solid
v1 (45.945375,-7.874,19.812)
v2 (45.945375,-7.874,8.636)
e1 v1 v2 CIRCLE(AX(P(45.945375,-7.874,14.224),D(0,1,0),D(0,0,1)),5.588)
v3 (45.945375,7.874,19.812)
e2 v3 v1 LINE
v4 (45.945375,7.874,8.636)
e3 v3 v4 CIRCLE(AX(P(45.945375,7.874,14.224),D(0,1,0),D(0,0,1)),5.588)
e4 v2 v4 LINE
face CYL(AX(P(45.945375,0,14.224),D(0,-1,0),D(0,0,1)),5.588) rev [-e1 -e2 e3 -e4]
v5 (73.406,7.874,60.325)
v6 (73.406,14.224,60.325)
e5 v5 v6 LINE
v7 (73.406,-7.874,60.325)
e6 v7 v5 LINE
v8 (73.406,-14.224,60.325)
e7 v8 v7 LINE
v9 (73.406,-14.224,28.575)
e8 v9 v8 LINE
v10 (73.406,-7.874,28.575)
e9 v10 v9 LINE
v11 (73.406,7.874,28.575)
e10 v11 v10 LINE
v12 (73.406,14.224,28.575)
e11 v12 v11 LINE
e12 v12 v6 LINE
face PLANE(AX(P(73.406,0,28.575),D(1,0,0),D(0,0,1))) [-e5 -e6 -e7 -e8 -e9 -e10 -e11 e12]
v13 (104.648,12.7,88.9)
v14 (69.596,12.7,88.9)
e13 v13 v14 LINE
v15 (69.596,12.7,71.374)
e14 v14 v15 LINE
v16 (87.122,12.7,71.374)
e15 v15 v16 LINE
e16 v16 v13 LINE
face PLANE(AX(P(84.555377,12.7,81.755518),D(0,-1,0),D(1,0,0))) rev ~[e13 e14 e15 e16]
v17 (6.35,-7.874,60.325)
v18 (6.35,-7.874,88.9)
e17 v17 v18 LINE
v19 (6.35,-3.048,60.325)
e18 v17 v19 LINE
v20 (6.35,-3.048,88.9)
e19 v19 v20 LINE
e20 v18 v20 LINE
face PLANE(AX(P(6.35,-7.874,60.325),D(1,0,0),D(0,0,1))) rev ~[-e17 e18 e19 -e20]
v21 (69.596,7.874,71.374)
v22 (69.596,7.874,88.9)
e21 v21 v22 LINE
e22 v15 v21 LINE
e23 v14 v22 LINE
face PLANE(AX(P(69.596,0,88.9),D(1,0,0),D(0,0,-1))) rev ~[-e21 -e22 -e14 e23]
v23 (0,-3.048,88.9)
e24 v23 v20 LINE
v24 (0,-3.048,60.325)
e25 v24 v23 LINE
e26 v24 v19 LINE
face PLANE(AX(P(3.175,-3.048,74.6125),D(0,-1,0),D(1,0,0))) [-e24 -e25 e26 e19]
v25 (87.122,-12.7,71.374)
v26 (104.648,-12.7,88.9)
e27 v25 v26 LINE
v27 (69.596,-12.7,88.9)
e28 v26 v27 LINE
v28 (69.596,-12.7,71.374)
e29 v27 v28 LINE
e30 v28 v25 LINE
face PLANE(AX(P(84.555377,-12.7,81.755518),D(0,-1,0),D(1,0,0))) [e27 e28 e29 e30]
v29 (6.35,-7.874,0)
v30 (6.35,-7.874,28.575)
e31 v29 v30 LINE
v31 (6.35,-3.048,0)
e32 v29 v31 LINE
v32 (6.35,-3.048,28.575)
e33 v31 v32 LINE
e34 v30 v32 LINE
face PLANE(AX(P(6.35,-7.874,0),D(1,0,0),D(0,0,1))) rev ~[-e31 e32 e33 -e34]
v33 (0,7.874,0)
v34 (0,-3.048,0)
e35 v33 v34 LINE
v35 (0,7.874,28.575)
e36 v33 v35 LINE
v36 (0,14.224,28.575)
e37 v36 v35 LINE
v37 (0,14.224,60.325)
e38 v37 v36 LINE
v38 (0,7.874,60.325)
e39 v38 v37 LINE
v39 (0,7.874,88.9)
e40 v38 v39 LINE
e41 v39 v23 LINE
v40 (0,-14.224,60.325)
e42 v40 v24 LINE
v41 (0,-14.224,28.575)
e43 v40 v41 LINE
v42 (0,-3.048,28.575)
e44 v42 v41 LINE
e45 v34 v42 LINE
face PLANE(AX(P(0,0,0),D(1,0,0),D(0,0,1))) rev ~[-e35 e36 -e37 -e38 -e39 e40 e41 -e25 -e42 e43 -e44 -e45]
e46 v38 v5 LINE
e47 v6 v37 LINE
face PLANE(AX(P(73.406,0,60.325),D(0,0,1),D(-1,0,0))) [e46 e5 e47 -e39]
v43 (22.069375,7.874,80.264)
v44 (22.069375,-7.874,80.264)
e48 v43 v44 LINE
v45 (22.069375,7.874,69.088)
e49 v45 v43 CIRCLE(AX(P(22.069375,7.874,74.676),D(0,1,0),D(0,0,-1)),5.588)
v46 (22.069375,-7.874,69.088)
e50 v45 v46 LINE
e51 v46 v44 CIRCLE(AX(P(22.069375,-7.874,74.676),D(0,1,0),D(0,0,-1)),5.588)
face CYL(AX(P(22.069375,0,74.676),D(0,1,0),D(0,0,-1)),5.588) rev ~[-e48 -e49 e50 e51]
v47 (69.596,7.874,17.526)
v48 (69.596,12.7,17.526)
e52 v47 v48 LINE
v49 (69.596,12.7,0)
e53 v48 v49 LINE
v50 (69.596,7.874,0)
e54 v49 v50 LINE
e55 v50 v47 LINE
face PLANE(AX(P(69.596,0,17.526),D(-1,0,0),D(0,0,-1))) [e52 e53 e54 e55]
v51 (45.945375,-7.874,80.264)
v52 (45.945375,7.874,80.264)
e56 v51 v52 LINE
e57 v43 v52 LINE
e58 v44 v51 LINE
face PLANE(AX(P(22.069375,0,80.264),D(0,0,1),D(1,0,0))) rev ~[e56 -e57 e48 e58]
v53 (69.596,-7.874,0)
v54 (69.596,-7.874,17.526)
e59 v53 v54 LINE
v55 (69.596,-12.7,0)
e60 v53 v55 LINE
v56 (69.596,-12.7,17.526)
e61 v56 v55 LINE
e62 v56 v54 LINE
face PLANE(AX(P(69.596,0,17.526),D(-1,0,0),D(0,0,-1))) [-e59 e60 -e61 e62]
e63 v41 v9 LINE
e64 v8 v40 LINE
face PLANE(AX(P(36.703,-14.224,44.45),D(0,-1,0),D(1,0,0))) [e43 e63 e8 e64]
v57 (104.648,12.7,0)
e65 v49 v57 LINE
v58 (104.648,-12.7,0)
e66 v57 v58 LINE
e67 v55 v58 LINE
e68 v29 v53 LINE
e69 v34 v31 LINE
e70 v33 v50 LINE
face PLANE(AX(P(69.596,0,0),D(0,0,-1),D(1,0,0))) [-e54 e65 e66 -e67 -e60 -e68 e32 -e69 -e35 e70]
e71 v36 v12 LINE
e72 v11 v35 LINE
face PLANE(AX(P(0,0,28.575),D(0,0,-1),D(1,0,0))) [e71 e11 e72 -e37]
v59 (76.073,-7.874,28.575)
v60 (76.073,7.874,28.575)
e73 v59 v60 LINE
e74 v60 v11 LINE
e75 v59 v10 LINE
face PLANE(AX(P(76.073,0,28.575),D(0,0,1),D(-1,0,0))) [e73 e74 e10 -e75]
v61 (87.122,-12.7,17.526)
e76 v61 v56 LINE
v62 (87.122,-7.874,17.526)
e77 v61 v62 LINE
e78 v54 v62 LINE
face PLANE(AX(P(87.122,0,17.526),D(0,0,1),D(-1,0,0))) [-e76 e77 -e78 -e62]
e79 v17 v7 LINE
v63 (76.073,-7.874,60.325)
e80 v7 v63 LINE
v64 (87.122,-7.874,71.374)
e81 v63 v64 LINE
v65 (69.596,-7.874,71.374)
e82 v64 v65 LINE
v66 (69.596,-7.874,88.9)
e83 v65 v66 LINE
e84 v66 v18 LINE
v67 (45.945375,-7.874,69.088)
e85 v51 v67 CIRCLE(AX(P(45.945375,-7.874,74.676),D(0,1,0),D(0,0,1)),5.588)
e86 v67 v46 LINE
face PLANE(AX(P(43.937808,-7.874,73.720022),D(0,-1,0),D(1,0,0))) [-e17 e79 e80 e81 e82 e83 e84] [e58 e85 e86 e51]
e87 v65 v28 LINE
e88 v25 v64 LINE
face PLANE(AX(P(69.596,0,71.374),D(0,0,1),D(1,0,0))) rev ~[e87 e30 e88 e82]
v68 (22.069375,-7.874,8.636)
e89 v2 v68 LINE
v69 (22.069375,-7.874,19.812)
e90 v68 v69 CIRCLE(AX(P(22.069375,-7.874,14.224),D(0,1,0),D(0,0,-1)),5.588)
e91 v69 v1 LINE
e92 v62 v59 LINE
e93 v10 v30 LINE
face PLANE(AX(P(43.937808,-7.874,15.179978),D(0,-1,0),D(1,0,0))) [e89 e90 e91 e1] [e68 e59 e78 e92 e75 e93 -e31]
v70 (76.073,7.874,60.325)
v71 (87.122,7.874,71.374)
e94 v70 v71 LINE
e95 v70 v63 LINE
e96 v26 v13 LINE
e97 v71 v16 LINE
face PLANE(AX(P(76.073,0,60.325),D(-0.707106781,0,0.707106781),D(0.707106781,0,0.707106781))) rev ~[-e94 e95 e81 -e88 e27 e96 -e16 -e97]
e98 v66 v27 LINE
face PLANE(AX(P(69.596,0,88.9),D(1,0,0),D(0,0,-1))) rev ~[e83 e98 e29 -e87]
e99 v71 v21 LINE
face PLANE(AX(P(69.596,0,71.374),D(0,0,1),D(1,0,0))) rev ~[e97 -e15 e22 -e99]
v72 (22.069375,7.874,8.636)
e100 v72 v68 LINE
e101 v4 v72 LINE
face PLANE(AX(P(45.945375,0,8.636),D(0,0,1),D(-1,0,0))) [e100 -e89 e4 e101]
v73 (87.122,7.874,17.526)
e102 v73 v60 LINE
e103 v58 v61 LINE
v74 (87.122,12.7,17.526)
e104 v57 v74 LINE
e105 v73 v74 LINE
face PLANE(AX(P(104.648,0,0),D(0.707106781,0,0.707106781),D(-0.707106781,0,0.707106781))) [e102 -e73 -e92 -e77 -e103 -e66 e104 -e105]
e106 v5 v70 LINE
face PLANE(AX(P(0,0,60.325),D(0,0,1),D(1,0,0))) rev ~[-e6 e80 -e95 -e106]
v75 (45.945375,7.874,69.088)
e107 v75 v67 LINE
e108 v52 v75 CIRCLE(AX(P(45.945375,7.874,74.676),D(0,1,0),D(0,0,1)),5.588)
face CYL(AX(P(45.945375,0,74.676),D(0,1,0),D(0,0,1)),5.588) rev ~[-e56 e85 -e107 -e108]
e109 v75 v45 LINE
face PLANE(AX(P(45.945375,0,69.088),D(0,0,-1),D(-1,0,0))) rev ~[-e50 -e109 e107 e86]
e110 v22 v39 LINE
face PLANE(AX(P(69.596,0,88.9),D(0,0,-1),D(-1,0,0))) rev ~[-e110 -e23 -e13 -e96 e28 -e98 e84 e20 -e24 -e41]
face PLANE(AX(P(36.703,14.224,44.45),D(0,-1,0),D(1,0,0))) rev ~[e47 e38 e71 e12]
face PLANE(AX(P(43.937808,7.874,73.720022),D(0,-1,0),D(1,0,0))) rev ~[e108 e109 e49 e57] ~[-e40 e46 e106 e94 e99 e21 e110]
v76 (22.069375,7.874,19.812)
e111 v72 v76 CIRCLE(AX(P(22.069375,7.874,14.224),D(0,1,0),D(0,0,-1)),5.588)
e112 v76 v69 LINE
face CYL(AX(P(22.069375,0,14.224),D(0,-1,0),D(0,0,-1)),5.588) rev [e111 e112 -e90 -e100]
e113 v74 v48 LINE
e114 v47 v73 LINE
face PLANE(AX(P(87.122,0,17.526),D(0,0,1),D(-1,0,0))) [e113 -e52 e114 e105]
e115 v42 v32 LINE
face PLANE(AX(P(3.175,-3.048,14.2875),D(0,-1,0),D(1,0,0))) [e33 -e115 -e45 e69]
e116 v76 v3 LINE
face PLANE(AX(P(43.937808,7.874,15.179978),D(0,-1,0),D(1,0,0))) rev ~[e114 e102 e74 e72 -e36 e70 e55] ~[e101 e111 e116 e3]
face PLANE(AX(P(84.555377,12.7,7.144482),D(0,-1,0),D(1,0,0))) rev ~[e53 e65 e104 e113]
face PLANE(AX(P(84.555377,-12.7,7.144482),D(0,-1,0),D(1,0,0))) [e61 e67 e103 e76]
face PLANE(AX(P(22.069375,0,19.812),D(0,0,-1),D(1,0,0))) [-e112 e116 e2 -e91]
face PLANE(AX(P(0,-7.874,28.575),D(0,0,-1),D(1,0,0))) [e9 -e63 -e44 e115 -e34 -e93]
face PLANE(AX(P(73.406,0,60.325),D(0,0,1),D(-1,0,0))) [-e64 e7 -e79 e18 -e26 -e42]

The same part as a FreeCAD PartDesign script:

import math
import FreeCAD as App
import Part
import Sketcher

V = App.Vector
Q = App.Units.Quantity

doc = App.newDocument("Part")
body = doc.addObject("PartDesign::Body", "Body")

# Sketch on XZ plane
sketch1 = body.newObject("Sketcher::SketchObject", "Sketch")
sketch1.AttachmentSupport = (doc.getObject("XZ_Plane"), [""])
sketch1.MapMode = "FlatFace"
sketch1.addGeometry([
    Part.LineSegment(V(0, 60.325, 0), V(0, 28.575, 0)),
    Part.LineSegment(V(0, 28.575, 0), V(73.406, 28.575, 0)),
    Part.LineSegment(V(73.406, 28.575, 0), V(73.406, 60.325, 0)),
    Part.LineSegment(V(73.406, 60.325, 0), V(0, 60.325, 0)),
], False)
sketch1.addConstraint([
    Sketcher.Constraint("Coincident", 0, 2, 1, 1),
    Sketcher.Constraint("Coincident", 1, 2, 2, 1),
    Sketcher.Constraint("Coincident", 2, 2, 3, 1),
    Sketcher.Constraint("Coincident", 3, 2, 0, 1),
    Sketcher.Constraint("Vertical", 0),
    Sketcher.Constraint("Horizontal", 1),
    Sketcher.Constraint("Vertical", 2),
    Sketcher.Constraint("Horizontal", 3),
    Sketcher.Constraint("PointOnObject", 0, 2, -2),
    Sketcher.Constraint("DistanceX", 1, 1, 1, 2, Q("2.89 in")),
    Sketcher.Constraint("DistanceY", 0, 2, 0, 1, Q("1.25 in")),
    Sketcher.Constraint("DistanceY", -1, 1, 0, 2, Q("1.125 in")),
])
pad1 = body.newObject("PartDesign::Pad", "Pad")
pad1.Profile = sketch1
pad1.Length = Q("1.12 in")
pad1.Midplane = True

# Sketch on XZ plane
sketch2 = body.newObject("Sketcher::SketchObject", "Sketch001")
sketch2.AttachmentSupport = (doc.getObject("XZ_Plane"), [""])
sketch2.MapMode = "FlatFace"
sketch2.addGeometry([
    Part.LineSegment(V(69.596, 88.9, 0), V(0, 88.9, 0)),  # 0
    Part.LineSegment(V(0, 88.9, 0), V(0, 60.325, 0)),  # 1
    Part.LineSegment(V(0, 60.325, 0), V(76.073, 60.325, 0)),  # 2
    Part.LineSegment(V(76.073, 60.325, 0), V(87.122, 71.374, 0)),  # 3
    Part.LineSegment(V(87.122, 71.374, 0), V(69.596, 71.374, 0)),  # 4
    Part.LineSegment(V(69.596, 71.374, 0), V(69.596, 88.9, 0)),  # 5
    Part.ArcOfCircle(Part.Circle(V(45.945375, 74.676, 0), V(0, 0, 1), 5.588), math.radians(-90), math.radians(90)),  # 6
    Part.LineSegment(V(45.945375, 69.088, 0), V(22.069375, 69.088, 0)),  # 7
    Part.ArcOfCircle(Part.Circle(V(22.069375, 74.676, 0), V(0, 0, 1), 5.588), math.radians(90), math.radians(270)),  # 8
    Part.LineSegment(V(22.069375, 80.264, 0), V(45.945375, 80.264, 0)),  # 9
    Part.LineSegment(V(76.073, 28.575, 0), V(0, 28.575, 0)),  # 10
    Part.LineSegment(V(0, 28.575, 0), V(0, 0, 0)),  # 11
    Part.LineSegment(V(0, 0, 0), V(69.596, 0, 0)),  # 12
    Part.LineSegment(V(69.596, 0, 0), V(69.596, 17.526, 0)),  # 13
    Part.LineSegment(V(69.596, 17.526, 0), V(87.122, 17.526, 0)),  # 14
    Part.LineSegment(V(87.122, 17.526, 0), V(76.073, 28.575, 0)),  # 15
    Part.LineSegment(V(45.945375, 8.636, 0), V(22.069375, 8.636, 0)),  # 16
    Part.ArcOfCircle(Part.Circle(V(22.069375, 14.224, 0), V(0, 0, 1), 5.588), math.radians(90), math.radians(270)),  # 17
    Part.LineSegment(V(22.069375, 19.812, 0), V(45.945375, 19.812, 0)),  # 18
    Part.ArcOfCircle(Part.Circle(V(45.945375, 14.224, 0), V(0, 0, 1), 5.588), math.radians(-90), math.radians(90)),  # 19
], False)
sketch2.addConstraint([
    Sketcher.Constraint("Coincident", 0, 2, 1, 1),
    Sketcher.Constraint("Coincident", 1, 2, 2, 1),
    Sketcher.Constraint("Coincident", 2, 2, 3, 1),
    Sketcher.Constraint("Coincident", 3, 2, 4, 1),
    Sketcher.Constraint("Coincident", 4, 2, 5, 1),
    Sketcher.Constraint("Coincident", 5, 2, 0, 1),
    Sketcher.Constraint("Tangent", 6, 1, 7, 1),
    Sketcher.Constraint("Tangent", 7, 2, 8, 2),
    Sketcher.Constraint("Tangent", 8, 1, 9, 1),
    Sketcher.Constraint("Tangent", 9, 2, 6, 2),
    Sketcher.Constraint("Coincident", 10, 2, 11, 1),
    Sketcher.Constraint("Coincident", 11, 2, 12, 1),
    Sketcher.Constraint("Coincident", 12, 2, 13, 1),
    Sketcher.Constraint("Coincident", 13, 2, 14, 1),
    Sketcher.Constraint("Coincident", 14, 2, 15, 1),
    Sketcher.Constraint("Coincident", 15, 2, 10, 1),
    Sketcher.Constraint("Tangent", 16, 2, 17, 2),
    Sketcher.Constraint("Tangent", 17, 1, 18, 1),
    Sketcher.Constraint("Tangent", 18, 2, 19, 2),
    Sketcher.Constraint("Tangent", 19, 1, 16, 1),
    Sketcher.Constraint("Horizontal", 0),
    Sketcher.Constraint("Vertical", 1),
    Sketcher.Constraint("Horizontal", 2),
    Sketcher.Constraint("Horizontal", 4),
    Sketcher.Constraint("Vertical", 5),
    Sketcher.Constraint("Horizontal", 7),
    Sketcher.Constraint("Horizontal", 9),
    Sketcher.Constraint("Horizontal", 10),
    Sketcher.Constraint("Vertical", 11),
    Sketcher.Constraint("Horizontal", 12),
    Sketcher.Constraint("Vertical", 13),
    Sketcher.Constraint("Horizontal", 14),
    Sketcher.Constraint("Horizontal", 16),
    Sketcher.Constraint("Horizontal", 18),
    Sketcher.Constraint("Coincident", 11, 2, -1, 1),
    Sketcher.Constraint("Equal", 8, 17),
    Sketcher.Constraint("PointOnObject", 0, 2, -2),
    Sketcher.Constraint("Perpendicular", 3, 15),
    Sketcher.Constraint("Vertical", 8, 3, 17, 3),
    Sketcher.Constraint("Vertical", 6, 3, 19, 3),
    Sketcher.Constraint("Vertical", 5, 2, 12, 2),
    Sketcher.Constraint("Vertical", 3, 2, 14, 2),
    Sketcher.Constraint("Vertical", 2, 2, 15, 2),
    Sketcher.Constraint("Equal", 14, 5),
    Sketcher.Constraint("Equal", 1, 11),
    Sketcher.Constraint("Equal", 5, 13),
    Sketcher.Constraint("Radius", 6, Q("0.22 in")),
    Sketcher.Constraint("DistanceX", 0, 2, 0, 1, Q("2.74 in")),
    Sketcher.Constraint("DistanceX", 4, 2, 4, 1, Q("0.69 in")),
    Sketcher.Constraint("DistanceX", 7, 2, 7, 1, Q("0.94 in")),
    Sketcher.Constraint("DistanceY", -1, 1, 0, 2, Q("3.5 in")),
    Sketcher.Constraint("DistanceX", 2, 1, 2, 2, Q("2.995 in")),
    Sketcher.Constraint("DistanceY", -1, 1, 6, 3, Q("2.94 in")),
    Sketcher.Constraint("DistanceY", -1, 1, 17, 3, Q("0.56 in")),
    Sketcher.Constraint("DistanceX", -1, 1, 6, 3, 45.945375),
])
pad2 = body.newObject("PartDesign::Pad", "Pad001")
pad2.Profile = sketch2
pad2.Length = Q("0.62 in")
pad2.Midplane = True

# Sketch on XZ plane
sketch3 = body.newObject("Sketcher::SketchObject", "Sketch002")
sketch3.AttachmentSupport = (doc.getObject("XZ_Plane"), [""])
sketch3.MapMode = "FlatFace"
sketch3.addGeometry([
    Part.LineSegment(V(104.648, 88.9, 0), V(69.596, 88.9, 0)),  # 0
    Part.LineSegment(V(69.596, 88.9, 0), V(69.596, 71.374, 0)),  # 1
    Part.LineSegment(V(69.596, 71.374, 0), V(87.122, 71.374, 0)),  # 2
    Part.LineSegment(V(87.122, 71.374, 0), V(104.648, 88.9, 0)),  # 3
    Part.LineSegment(V(69.596, 17.526, 0), V(69.596, 0, 0)),  # 4
    Part.LineSegment(V(69.596, 0, 0), V(104.648, 0, 0)),  # 5
    Part.LineSegment(V(104.648, 0, 0), V(87.122, 17.526, 0)),  # 6
    Part.LineSegment(V(87.122, 17.526, 0), V(69.596, 17.526, 0)),  # 7
], False)
sketch3.addConstraint([
    Sketcher.Constraint("Coincident", 0, 2, 1, 1),
    Sketcher.Constraint("Coincident", 1, 2, 2, 1),
    Sketcher.Constraint("Coincident", 2, 2, 3, 1),
    Sketcher.Constraint("Coincident", 3, 2, 0, 1),
    Sketcher.Constraint("Coincident", 4, 2, 5, 1),
    Sketcher.Constraint("Coincident", 5, 2, 6, 1),
    Sketcher.Constraint("Coincident", 6, 2, 7, 1),
    Sketcher.Constraint("Coincident", 7, 2, 4, 1),
    Sketcher.Constraint("Horizontal", 0),
    Sketcher.Constraint("Vertical", 1),
    Sketcher.Constraint("Horizontal", 2),
    Sketcher.Constraint("Vertical", 4),
    Sketcher.Constraint("Horizontal", 5),
    Sketcher.Constraint("Horizontal", 7),
    Sketcher.Constraint("PointOnObject", 4, 2, -1),
    Sketcher.Constraint("Perpendicular", 3, 6),
    Sketcher.Constraint("Vertical", 1, 2, 4, 2),
    Sketcher.Constraint("Vertical", 3, 2, 5, 2),
    Sketcher.Constraint("Vertical", 2, 2, 6, 2),
    Sketcher.Constraint("Equal", 7, 1),
    Sketcher.Constraint("Equal", 1, 4),
    Sketcher.Constraint("DistanceX", 0, 2, 0, 1, Q("1.38 in")),
    Sketcher.Constraint("DistanceY", -1, 1, 0, 2, Q("3.5 in")),
    Sketcher.Constraint("DistanceX", -1, 1, 0, 2, Q("2.74 in")),
])
pad3 = body.newObject("PartDesign::Pad", "Pad002")
pad3.Profile = sketch3
pad3.Length = Q("1 in")
pad3.Midplane = True

# Sketch on XZ plane
sketch4 = body.newObject("Sketcher::SketchObject", "Sketch003")
sketch4.AttachmentSupport = (doc.getObject("XZ_Plane"), [""])
sketch4.MapMode = "FlatFace"
sketch4.AttachmentOffset = App.Placement(V(0, 0, 0.31 * 25.4), App.Rotation())
sketch4.addGeometry([
    Part.LineSegment(V(0, 88.9, 0), V(0, 60.325, 0)),  # 0
    Part.LineSegment(V(0, 60.325, 0), V(6.35, 60.325, 0)),  # 1
    Part.LineSegment(V(6.35, 60.325, 0), V(6.35, 88.9, 0)),  # 2
    Part.LineSegment(V(6.35, 88.9, 0), V(0, 88.9, 0)),  # 3
    Part.LineSegment(V(0, 28.575, 0), V(0, 0, 0)),  # 4
    Part.LineSegment(V(0, 0, 0), V(6.35, 0, 0)),  # 5
    Part.LineSegment(V(6.35, 0, 0), V(6.35, 28.575, 0)),  # 6
    Part.LineSegment(V(6.35, 28.575, 0), V(0, 28.575, 0)),  # 7
], False)
sketch4.addConstraint([
    Sketcher.Constraint("Coincident", 0, 2, 1, 1),
    Sketcher.Constraint("Coincident", 1, 2, 2, 1),
    Sketcher.Constraint("Coincident", 2, 2, 3, 1),
    Sketcher.Constraint("Coincident", 3, 2, 0, 1),
    Sketcher.Constraint("Coincident", 4, 2, 5, 1),
    Sketcher.Constraint("Coincident", 5, 2, 6, 1),
    Sketcher.Constraint("Coincident", 6, 2, 7, 1),
    Sketcher.Constraint("Coincident", 7, 2, 4, 1),
    Sketcher.Constraint("Vertical", 0),
    Sketcher.Constraint("Horizontal", 1),
    Sketcher.Constraint("Vertical", 2),
    Sketcher.Constraint("Horizontal", 3),
    Sketcher.Constraint("Vertical", 4),
    Sketcher.Constraint("Horizontal", 5),
    Sketcher.Constraint("Vertical", 6),
    Sketcher.Constraint("Horizontal", 7),
    Sketcher.Constraint("Coincident", 4, 2, -1, 1),
    Sketcher.Constraint("PointOnObject", 0, 2, -2),
    Sketcher.Constraint("Vertical", 2, 2, 5, 2),
    Sketcher.Constraint("Equal", 2, 4),
    Sketcher.Constraint("DistanceX", 1, 1, 1, 2, Q("0.25 in")),
    Sketcher.Constraint("DistanceY", -1, 1, 2, 2, Q("3.5 in")),
    Sketcher.Constraint("DistanceY", 0, 2, 0, 1, Q("1.125 in")),
])
pocket1 = body.newObject("PartDesign::Pocket", "Pocket")
pocket1.Profile = sketch4
pocket1.Length = Q("0.19 in")

doc.recompute()
